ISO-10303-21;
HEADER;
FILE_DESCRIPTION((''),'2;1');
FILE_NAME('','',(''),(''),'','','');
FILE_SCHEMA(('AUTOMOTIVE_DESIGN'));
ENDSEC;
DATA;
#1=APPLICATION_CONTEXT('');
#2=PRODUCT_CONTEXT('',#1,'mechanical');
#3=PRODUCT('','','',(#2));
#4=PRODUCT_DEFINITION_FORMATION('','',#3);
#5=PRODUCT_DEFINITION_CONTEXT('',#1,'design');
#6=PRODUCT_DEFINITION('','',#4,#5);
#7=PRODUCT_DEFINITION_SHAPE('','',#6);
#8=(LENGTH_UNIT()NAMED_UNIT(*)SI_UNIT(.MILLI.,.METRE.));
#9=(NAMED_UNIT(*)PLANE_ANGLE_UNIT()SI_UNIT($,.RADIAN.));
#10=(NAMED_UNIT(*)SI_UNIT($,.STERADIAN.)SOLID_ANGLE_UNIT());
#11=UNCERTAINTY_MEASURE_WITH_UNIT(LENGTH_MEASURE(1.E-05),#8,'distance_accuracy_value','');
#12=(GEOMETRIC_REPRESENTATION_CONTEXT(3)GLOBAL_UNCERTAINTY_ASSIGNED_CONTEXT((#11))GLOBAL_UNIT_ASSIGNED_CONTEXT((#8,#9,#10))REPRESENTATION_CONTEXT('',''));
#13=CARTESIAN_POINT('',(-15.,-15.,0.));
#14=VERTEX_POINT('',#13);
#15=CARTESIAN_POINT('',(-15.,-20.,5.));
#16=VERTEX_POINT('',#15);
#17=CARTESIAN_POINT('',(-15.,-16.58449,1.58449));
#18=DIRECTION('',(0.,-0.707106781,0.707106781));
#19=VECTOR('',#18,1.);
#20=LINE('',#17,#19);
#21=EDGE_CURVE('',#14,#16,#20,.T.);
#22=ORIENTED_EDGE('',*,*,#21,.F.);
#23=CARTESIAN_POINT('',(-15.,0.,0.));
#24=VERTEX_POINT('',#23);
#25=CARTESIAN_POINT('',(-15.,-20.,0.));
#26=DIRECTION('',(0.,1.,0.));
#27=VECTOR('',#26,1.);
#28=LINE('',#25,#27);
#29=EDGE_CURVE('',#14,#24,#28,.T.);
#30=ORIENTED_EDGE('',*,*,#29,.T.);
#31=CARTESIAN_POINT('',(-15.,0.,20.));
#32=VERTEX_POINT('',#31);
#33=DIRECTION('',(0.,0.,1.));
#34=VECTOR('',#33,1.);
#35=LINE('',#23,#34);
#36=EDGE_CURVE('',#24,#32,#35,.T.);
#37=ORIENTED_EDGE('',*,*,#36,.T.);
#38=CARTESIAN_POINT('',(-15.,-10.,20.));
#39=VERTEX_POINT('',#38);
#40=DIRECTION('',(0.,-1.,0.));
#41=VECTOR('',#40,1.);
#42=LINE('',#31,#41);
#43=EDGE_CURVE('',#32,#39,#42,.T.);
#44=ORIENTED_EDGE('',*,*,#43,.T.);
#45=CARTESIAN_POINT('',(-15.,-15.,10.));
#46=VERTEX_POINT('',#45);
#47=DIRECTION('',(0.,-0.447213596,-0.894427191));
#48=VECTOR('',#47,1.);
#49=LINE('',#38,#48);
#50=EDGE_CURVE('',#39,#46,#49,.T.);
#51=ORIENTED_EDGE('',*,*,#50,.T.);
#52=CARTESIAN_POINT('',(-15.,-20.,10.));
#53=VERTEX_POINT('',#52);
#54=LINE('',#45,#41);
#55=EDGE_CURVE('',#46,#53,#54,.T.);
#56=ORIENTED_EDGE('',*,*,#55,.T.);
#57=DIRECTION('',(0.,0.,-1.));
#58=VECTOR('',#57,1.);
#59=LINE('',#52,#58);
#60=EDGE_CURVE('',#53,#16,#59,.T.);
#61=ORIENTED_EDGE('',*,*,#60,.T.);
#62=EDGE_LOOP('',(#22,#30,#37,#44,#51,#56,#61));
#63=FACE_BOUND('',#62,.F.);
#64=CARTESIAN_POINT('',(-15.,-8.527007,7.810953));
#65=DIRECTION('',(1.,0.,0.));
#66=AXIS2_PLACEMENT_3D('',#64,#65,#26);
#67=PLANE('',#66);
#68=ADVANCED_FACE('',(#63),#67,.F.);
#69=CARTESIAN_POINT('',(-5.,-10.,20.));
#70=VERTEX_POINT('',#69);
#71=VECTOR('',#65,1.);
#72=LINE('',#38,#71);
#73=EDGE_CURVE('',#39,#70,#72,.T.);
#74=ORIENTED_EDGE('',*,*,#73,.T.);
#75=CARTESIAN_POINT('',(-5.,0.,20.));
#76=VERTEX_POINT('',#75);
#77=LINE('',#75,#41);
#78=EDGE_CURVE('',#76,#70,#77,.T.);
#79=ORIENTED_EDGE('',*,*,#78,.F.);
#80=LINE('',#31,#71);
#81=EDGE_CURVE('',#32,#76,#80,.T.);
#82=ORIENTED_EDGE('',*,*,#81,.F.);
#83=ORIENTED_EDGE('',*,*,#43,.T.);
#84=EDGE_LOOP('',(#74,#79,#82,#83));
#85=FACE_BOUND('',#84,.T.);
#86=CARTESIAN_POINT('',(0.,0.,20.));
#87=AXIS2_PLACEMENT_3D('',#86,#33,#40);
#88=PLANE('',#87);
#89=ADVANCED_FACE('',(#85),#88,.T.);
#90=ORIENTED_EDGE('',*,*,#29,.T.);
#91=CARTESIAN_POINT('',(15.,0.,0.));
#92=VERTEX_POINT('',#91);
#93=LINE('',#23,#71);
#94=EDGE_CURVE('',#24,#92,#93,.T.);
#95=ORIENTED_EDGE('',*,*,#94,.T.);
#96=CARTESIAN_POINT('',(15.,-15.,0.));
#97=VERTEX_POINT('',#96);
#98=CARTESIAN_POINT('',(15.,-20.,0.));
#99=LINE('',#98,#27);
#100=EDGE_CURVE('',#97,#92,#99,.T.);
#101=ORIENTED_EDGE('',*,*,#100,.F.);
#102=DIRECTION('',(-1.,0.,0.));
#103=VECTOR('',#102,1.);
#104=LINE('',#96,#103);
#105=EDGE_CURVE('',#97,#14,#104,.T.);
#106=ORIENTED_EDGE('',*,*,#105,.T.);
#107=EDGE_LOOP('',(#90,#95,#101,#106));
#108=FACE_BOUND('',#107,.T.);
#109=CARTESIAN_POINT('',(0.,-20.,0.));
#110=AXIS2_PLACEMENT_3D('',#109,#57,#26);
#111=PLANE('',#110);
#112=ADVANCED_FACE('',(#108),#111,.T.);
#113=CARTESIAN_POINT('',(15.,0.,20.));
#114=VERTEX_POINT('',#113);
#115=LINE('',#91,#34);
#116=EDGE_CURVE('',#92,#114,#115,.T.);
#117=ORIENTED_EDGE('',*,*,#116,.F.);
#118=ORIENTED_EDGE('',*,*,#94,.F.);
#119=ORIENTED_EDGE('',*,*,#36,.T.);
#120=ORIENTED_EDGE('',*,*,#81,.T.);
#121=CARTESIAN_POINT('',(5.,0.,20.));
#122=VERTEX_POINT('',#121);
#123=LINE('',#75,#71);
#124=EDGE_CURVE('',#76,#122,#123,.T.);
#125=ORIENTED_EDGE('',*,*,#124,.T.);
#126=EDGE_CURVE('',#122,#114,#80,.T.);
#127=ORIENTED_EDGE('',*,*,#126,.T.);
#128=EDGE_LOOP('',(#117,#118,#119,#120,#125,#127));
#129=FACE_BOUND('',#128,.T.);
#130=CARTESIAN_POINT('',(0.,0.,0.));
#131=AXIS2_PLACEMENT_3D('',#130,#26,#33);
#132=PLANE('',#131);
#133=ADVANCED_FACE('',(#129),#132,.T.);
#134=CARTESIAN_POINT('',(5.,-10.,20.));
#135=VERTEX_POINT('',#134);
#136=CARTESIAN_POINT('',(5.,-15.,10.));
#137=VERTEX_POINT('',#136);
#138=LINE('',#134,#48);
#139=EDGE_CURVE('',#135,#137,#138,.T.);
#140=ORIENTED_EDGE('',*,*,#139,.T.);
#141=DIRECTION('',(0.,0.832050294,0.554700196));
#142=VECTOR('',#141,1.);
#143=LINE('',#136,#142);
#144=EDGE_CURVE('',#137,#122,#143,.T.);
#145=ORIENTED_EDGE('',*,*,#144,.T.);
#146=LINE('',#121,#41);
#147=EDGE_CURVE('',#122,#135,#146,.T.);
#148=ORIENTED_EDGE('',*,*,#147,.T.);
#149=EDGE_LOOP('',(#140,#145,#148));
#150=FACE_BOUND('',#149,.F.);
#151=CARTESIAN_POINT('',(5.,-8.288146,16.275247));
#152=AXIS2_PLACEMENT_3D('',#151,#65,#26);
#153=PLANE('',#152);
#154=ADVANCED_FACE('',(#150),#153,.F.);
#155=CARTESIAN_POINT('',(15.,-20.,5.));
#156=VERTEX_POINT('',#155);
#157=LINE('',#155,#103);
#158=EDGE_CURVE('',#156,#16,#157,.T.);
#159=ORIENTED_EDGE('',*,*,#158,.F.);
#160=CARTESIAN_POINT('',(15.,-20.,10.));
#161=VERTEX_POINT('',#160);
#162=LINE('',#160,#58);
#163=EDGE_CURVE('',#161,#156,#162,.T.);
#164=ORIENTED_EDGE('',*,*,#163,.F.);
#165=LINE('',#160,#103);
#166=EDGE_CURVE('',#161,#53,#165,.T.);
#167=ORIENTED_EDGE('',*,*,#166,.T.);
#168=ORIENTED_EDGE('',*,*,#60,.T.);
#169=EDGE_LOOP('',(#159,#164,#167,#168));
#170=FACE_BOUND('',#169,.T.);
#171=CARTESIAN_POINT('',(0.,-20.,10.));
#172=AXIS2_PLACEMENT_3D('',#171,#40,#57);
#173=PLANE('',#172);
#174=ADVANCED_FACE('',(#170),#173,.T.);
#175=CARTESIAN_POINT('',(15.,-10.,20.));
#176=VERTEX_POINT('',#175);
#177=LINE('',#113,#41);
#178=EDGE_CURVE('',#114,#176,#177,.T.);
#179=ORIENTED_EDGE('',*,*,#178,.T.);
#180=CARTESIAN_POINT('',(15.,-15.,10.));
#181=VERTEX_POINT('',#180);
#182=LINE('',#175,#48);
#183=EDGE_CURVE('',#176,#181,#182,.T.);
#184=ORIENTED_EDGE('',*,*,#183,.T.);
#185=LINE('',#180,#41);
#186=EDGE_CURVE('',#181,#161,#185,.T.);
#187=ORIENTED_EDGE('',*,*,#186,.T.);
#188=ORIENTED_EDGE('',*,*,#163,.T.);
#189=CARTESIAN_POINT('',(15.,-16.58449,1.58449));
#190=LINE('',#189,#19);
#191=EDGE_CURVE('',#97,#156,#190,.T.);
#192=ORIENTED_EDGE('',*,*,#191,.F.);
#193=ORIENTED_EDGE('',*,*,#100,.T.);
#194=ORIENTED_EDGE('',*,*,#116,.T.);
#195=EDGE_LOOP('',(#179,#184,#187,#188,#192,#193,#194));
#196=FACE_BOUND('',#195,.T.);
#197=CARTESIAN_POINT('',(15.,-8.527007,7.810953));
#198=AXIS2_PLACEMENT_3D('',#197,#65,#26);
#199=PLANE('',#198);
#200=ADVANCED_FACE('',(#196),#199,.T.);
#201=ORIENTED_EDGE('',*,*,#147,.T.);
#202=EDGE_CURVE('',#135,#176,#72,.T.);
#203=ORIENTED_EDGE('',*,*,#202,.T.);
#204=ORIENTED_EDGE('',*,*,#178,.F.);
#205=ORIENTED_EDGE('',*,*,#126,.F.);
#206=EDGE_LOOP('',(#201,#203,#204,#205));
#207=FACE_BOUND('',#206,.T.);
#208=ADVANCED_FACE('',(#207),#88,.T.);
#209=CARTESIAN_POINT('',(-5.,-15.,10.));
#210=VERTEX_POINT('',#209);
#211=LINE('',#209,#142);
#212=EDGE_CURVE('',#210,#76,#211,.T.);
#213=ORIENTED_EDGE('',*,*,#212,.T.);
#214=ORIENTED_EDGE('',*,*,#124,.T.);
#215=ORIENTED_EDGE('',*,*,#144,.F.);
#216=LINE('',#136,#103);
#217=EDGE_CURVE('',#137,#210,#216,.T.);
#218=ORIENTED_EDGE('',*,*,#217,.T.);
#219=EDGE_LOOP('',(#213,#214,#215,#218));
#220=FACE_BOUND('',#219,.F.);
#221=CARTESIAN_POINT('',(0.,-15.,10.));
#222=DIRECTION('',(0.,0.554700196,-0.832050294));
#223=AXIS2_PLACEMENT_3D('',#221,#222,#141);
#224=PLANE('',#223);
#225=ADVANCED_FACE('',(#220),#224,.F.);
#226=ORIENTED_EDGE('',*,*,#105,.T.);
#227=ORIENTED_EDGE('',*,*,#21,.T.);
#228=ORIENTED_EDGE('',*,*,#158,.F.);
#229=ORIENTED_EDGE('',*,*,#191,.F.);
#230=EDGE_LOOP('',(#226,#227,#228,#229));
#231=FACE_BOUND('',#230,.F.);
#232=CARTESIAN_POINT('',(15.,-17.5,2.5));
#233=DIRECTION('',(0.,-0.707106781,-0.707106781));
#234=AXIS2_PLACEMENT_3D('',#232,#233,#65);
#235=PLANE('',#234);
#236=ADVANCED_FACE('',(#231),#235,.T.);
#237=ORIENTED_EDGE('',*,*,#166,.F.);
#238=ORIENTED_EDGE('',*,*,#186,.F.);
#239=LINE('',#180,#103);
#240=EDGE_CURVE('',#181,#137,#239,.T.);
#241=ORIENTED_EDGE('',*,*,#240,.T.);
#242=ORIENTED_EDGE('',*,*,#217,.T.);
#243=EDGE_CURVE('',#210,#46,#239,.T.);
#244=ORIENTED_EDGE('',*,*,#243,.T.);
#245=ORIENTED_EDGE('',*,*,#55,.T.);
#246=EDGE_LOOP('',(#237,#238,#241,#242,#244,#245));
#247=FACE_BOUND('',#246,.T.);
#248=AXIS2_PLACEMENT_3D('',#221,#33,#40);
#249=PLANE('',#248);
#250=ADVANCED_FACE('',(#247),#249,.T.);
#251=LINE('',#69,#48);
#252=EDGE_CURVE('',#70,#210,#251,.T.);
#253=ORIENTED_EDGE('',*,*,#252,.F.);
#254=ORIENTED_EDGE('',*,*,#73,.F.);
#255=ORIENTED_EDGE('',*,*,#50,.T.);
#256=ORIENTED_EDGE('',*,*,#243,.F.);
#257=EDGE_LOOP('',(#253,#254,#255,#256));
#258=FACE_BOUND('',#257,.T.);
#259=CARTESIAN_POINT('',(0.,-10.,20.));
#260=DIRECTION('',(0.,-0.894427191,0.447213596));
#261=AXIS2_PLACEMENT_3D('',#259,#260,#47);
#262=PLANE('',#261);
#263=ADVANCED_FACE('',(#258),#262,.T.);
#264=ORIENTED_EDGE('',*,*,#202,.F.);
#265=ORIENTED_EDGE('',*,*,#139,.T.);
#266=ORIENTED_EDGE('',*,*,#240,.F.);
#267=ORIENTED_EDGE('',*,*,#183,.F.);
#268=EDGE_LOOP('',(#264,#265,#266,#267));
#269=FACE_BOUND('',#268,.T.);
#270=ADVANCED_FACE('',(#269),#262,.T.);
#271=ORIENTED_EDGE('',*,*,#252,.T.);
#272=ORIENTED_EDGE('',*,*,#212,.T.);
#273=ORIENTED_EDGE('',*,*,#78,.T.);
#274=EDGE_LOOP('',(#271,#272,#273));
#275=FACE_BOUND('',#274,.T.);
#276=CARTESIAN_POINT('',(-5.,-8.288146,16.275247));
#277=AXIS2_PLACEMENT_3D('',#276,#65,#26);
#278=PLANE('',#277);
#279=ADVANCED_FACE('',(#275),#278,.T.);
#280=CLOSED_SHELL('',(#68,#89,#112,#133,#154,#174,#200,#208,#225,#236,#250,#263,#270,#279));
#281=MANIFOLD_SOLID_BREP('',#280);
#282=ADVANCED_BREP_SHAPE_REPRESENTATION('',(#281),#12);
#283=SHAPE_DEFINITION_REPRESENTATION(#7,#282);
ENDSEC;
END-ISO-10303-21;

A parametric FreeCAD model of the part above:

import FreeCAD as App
import Part
import Sketcher
from FreeCAD import Vector
Q = App.Units.Quantity


def edges_at(feature, points):
    """Names of the edges that pass closest to the given points."""
    edges = feature.Shape.Edges
    near = lambda p: min(range(len(edges)), key=lambda i: edges[i].distToShape(Part.Vertex(*p))[0])
    return sorted({f"Edge{near(p) + 1}" for p in points})


def add_polygon(sketch, points):
    """Adds a closed chain of lines whose ends are joined by coincident constraints."""
    first, n = sketch.GeometryCount, len(points)
    for a, b in zip(points, points[1:] + points[:1]):
        sketch.addGeometry(Part.LineSegment(App.Vector(*a, 0), App.Vector(*b, 0)), False)
    for i in range(n):
        sketch.addConstraint(Sketcher.Constraint("Coincident", first + i, 2, first + (i + 1) % n, 1))

doc = App.newDocument("Part")
body = doc.addObject("PartDesign::Body", "Body")

sketch1 = doc.addObject("Sketcher::SketchObject", "Sketch")
body.addObject(sketch1)
sketch1.AttachmentSupport = (doc.YZ_Plane, [""])
sketch1.MapMode = "FlatFace"
add_polygon(sketch1, [(-20, 0), (0, 0), (0, 20), (-10, 20), (-15, 10), (-20, 10)])
sketch1.addConstraint(Sketcher.Constraint("Horizontal", 0))
sketch1.addConstraint(Sketcher.Constraint("Vertical", 1))
sketch1.addConstraint(Sketcher.Constraint("Horizontal", 2))
sketch1.addConstraint(Sketcher.Constraint("Horizontal", 4))
sketch1.addConstraint(Sketcher.Constraint("Vertical", 5))
sketch1.addConstraint(Sketcher.Constraint("Coincident", 0, 2, -1, 1))
sketch1.addConstraint(Sketcher.Constraint("Equal", 0, 1))
sketch1.addConstraint(Sketcher.Constraint("Equal", 2, 5))
sketch1.addConstraint(Sketcher.Constraint("DistanceX", 0, 1, 0, 2, Q("20 mm")))
sketch1.addConstraint(Sketcher.Constraint("DistanceX", 2, 2, 2, 1, Q("10 mm")))
sketch1.addConstraint(Sketcher.Constraint("DistanceX", 4, 2, 4, 1, Q("5 mm")))
pad1 = doc.addObject("PartDesign::Pad", "Pad")
body.addObject(pad1)
pad1.Profile = sketch1
pad1.Length = 30
pad1.Midplane = True

sketch2 = doc.addObject("Sketcher::SketchObject", "Sketch001")
body.addObject(sketch2)
sketch2.AttachmentSupport = (doc.YZ_Plane, [""])
sketch2.MapMode = "FlatFace"
add_polygon(sketch2, [(-15, 10), (0, 20), (-10, 20)])
sketch2.addConstraint(Sketcher.Constraint("Horizontal", 1))
sketch2.addConstraint(Sketcher.Constraint("PointOnObject", 0, 2, -2))
sketch2.addConstraint(Sketcher.Constraint("DistanceX", 1, 2, 1, 1, Q("10 mm")))
sketch2.addConstraint(Sketcher.Constraint("DistanceY", -1, 1, 0, 2, Q("20 mm")))
sketch2.addConstraint(Sketcher.Constraint("DistanceX", 2, 2, -1, 1, Q("15 mm")))
sketch2.addConstraint(Sketcher.Constraint("DistanceY", -1, 1, 2, 2, Q("10 mm")))
pocket1 = doc.addObject("PartDesign::Pocket", "Pocket")
body.addObject(pocket1)
pocket1.Profile = sketch2
pocket1.Length = 10
pocket1.Midplane = True
doc.recompute()

chamfer = doc.addObject("PartDesign::Chamfer", "Chamfer")
body.addObject(chamfer)
chamfer.Base = (pocket1, edges_at(pocket1, [(0, -20, 0)]))
chamfer.Size = 5

doc.recompute()
